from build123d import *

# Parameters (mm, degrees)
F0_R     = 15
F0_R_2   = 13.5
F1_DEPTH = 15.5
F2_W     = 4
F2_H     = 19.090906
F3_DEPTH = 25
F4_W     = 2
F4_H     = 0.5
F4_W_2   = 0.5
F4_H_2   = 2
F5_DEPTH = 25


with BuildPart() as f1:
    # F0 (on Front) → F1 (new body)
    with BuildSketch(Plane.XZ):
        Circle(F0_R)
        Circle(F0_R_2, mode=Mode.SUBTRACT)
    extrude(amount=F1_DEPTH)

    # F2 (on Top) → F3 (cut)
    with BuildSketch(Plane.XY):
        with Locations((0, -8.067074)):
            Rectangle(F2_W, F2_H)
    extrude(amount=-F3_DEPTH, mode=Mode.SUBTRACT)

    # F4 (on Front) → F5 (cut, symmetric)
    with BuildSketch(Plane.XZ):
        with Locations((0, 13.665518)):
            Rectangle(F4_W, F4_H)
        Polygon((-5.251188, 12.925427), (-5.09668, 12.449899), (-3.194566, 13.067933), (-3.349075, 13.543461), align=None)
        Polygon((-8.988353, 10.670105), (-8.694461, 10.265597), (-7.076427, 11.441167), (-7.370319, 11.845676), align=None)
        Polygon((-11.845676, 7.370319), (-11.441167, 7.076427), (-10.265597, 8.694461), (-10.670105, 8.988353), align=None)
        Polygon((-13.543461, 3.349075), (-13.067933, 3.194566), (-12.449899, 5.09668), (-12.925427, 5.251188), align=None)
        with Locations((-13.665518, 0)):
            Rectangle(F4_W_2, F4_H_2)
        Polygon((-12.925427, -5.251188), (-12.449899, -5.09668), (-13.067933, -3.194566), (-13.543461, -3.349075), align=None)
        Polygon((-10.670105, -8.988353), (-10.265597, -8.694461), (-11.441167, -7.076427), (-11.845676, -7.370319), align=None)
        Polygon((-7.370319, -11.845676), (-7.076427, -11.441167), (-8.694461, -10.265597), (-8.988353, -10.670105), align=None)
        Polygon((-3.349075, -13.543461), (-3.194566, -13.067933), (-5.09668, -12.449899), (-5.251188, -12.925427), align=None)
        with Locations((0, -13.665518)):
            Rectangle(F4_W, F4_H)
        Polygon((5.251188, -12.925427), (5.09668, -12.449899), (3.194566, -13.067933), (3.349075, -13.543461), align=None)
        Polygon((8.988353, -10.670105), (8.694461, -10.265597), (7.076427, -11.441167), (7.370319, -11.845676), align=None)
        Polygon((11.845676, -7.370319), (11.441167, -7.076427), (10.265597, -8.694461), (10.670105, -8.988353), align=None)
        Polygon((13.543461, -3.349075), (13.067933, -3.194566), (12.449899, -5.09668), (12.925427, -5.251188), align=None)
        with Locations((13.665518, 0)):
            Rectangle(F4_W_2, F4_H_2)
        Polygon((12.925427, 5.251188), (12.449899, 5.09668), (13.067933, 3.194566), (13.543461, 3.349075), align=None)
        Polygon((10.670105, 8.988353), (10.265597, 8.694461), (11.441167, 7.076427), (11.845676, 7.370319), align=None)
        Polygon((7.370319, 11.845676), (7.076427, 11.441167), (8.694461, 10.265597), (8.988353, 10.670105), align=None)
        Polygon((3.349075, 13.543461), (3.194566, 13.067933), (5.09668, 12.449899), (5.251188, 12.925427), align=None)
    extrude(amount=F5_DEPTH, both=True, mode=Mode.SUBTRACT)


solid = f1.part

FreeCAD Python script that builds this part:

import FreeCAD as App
import Part
import Sketcher
Q = App.Units.Quantity

doc = App.newDocument("Part")
body = doc.addObject("PartDesign::Body", "Body")

# Sketch on XZ plane
sketch1 = body.newObject("Sketcher::SketchObject", "Sketch")
sketch1.AttachmentSupport = (doc.getObject("XZ_Plane"), [""])
sketch1.MapMode = "FlatFace"
sketch1.addGeometry(Part.Circle(App.Vector(0, 0, 0), App.Vector(0, 0, 1), 15), False)
sketch1.addGeometry(Part.Circle(App.Vector(0, 0, 0), App.Vector(0, 0, 1), 13.5), False)
sketch1.addConstraint(Sketcher.Constraint("Coincident", 0, 3, -1, 1))
sketch1.addConstraint(Sketcher.Constraint("Coincident", 1, 3, -1, 1))
sketch1.addConstraint(Sketcher.Constraint("Diameter", 0, Q("30 mm")))
sketch1.addConstraint(Sketcher.Constraint("Diameter", 1, Q("27 mm")))
pad1 = body.newObject("PartDesign::Pad", "Pad")
pad1.Profile = sketch1
pad1.Length = 15.5

# Sketch on XY plane
sketch2 = body.newObject("Sketcher::SketchObject", "Sketch001")
sketch2.AttachmentSupport = (doc.getObject("XY_Plane"), [""])
sketch2.MapMode = "FlatFace"
sketch2.addGeometry(Part.LineSegment(App.Vector(-2, 1.478379, 0), App.Vector(-2, -17.612527, 0)), False)
sketch2.addGeometry(Part.LineSegment(App.Vector(-2, -17.612527, 0), App.Vector(2, -17.612527, 0)), False)
sketch2.addGeometry(Part.LineSegment(App.Vector(2, -17.612527, 0), App.Vector(2, 1.478379, 0)), False)
sketch2.addGeometry(Part.LineSegment(App.Vector(2, 1.478379, 0), App.Vector(-2, 1.478379, 0)), False)
sketch2.addConstraint(Sketcher.Constraint("Coincident", 0, 2, 1, 1))
sketch2.addConstraint(Sketcher.Constraint("Coincident", 1, 2, 2, 1))
sketch2.addConstraint(Sketcher.Constraint("Coincident", 2, 2, 3, 1))
sketch2.addConstraint(Sketcher.Constraint("Coincident", 3, 2, 0, 1))
sketch2.addConstraint(Sketcher.Constraint("Vertical", 0))
sketch2.addConstraint(Sketcher.Constraint("Horizontal", 1))
sketch2.addConstraint(Sketcher.Constraint("Vertical", 2))
sketch2.addConstraint(Sketcher.Constraint("Horizontal", 3))
sketch2.addConstraint(Sketcher.Constraint("DistanceX", 1, 1, 1, 2, Q("4 mm")))
sketch2.addConstraint(Sketcher.Constraint("DistanceX", 0, 2, -1, 1, Q("2 mm")))
sketch2.addConstraint(Sketcher.Constraint("DistanceY", 0, 2, 0, 1, Q("19.090906 mm")))
sketch2.addConstraint(Sketcher.Constraint("DistanceY", -1, 1, 2, 2, Q("1.478379 mm")))
pocket1 = body.newObject("PartDesign::Pocket", "Pocket")
pocket1.Profile = sketch2
pocket1.Length = 25

# Sketch on XZ plane
sketch3 = body.newObject("Sketcher::SketchObject", "Sketch002")
sketch3.AttachmentSupport = (doc.getObject("XZ_Plane"), [""])
sketch3.MapMode = "FlatFace"
sketch3.addGeometry(Part.LineSegment(App.Vector(-1, 13.915518, 0), App.Vector(-1, 13.415518, 0)), False)
sketch3.addGeometry(Part.LineSegment(App.Vector(-1, 13.415518, 0), App.Vector(1, 13.415518, 0)), False)
sketch3.addGeometry(Part.LineSegment(App.Vector(1, 13.415518, 0), App.Vector(1, 13.915518, 0)), False)
sketch3.addGeometry(Part.LineSegment(App.Vector(1, 13.915518, 0), App.Vector(-1, 13.915518, 0)), False)
sketch3.addGeometry(Part.LineSegment(App.Vector(-5.251188, 12.925427, 0), App.Vector(-5.09668, 12.449899, 0)), False)
sketch3.addGeometry(Part.LineSegment(App.Vector(-5.09668, 12.449899, 0), App.Vector(-3.194566, 13.067933, 0)), False)
sketch3.addGeometry(Part.LineSegment(App.Vector(-3.194566, 13.067933, 0), App.Vector(-3.349075, 13.543461, 0)), False)
sketch3.addGeometry(Part.LineSegment(App.Vector(-3.349075, 13.543461, 0), App.Vector(-5.251188, 12.925427, 0)), False)
sketch3.addGeometry(Part.LineSegment(App.Vector(-8.988353, 10.670105, 0), App.Vector(-8.694461, 10.265597, 0)), False)
sketch3.addGeometry(Part.LineSegment(App.Vector(-8.694461, 10.265597, 0), App.Vector(-7.076427, 11.441167, 0)), False)
sketch3.addGeometry(Part.LineSegment(App.Vector(-7.076427, 11.441167, 0), App.Vector(-7.370319, 11.845676, 0)), False)
sketch3.addGeometry(Part.LineSegment(App.Vector(-7.370319, 11.845676, 0), App.Vector(-8.988353, 10.670105, 0)), False)
sketch3.addGeometry(Part.LineSegment(App.Vector(-11.845676, 7.370319, 0), App.Vector(-11.441167, 7.076427, 0)), False)
sketch3.addGeometry(Part.LineSegment(App.Vector(-11.441167, 7.076427, 0), App.Vector(-10.265597, 8.694461, 0)), False)
sketch3.addGeometry(Part.LineSegment(App.Vector(-10.265597, 8.694461, 0), App.Vector(-10.670105, 8.988353, 0)), False)
sketch3.addGeometry(Part.LineSegment(App.Vector(-10.670105, 8.988353, 0), App.Vector(-11.845676, 7.370319, 0)), False)
sketch3.addGeometry(Part.LineSegment(App.Vector(-13.543461, 3.349075, 0), App.Vector(-13.067933, 3.194566, 0)), False)
sketch3.addGeometry(Part.LineSegment(App.Vector(-13.067933, 3.194566, 0), App.Vector(-12.449899, 5.09668, 0)), False)
sketch3.addGeometry(Part.LineSegment(App.Vector(-12.449899, 5.09668, 0), App.Vector(-12.925427, 5.251188, 0)), False)
sketch3.addGeometry(Part.LineSegment(App.Vector(-12.925427, 5.251188, 0), App.Vector(-13.543461, 3.349075, 0)), False)
sketch3.addGeometry(Part.LineSegment(App.Vector(-13.915518, 1, 0), App.Vector(-13.915518, -1, 0)), False)
sketch3.addGeometry(Part.LineSegment(App.Vector(-13.915518, -1, 0), App.Vector(-13.415518, -1, 0)), False)
sketch3.addGeometry(Part.LineSegment(App.Vector(-13.415518, -1, 0), App.Vector(-13.415518, 1, 0)), False)
sketch3.addGeometry(Part.LineSegment(App.Vector(-13.415518, 1, 0), App.Vector(-13.915518, 1, 0)), False)
sketch3.addGeometry(Part.LineSegment(App.Vector(-12.925427, -5.251188, 0), App.Vector(-12.449899, -5.09668, 0)), False)
sketch3.addGeometry(Part.LineSegment(App.Vector(-12.449899, -5.09668, 0), App.Vector(-13.067933, -3.194566, 0)), False)
sketch3.addGeometry(Part.LineSegment(App.Vector(-13.067933, -3.194566, 0), App.Vector(-13.543461, -3.349075, 0)), False)
sketch3.addGeometry(Part.LineSegment(App.Vector(-13.543461, -3.349075, 0), App.Vector(-12.925427, -5.251188, 0)), False)
sketch3.addGeometry(Part.LineSegment(App.Vector(-10.670105, -8.988353, 0), App.Vector(-10.265597, -8.694461, 0)), False)
sketch3.addGeometry(Part.LineSegment(App.Vector(-10.265597, -8.694461, 0), App.Vector(-11.441167, -7.076427, 0)), False)
sketch3.addGeometry(Part.LineSegment(App.Vector(-11.441167, -7.076427, 0), App.Vector(-11.845676, -7.370319, 0)), False)
sketch3.addGeometry(Part.LineSegment(App.Vector(-11.845676, -7.370319, 0), App.Vector(-10.670105, -8.988353, 0)), False)
sketch3.addGeometry(Part.LineSegment(App.Vector(-7.370319, -11.845676, 0), App.Vector(-7.076427, -11.441167, 0)), False)
sketch3.addGeometry(Part.LineSegment(App.Vector(-7.076427, -11.441167, 0), App.Vector(-8.694461, -10.265597, 0)), False)
sketch3.addGeometry(Part.LineSegment(App.Vector(-8.694461, -10.265597, 0), App.Vector(-8.988353, -10.670105, 0)), False)
sketch3.addGeometry(Part.LineSegment(App.Vector(-8.988353, -10.670105, 0), App.Vector(-7.370319, -11.845676, 0)), False)
sketch3.addGeometry(Part.LineSegment(App.Vector(-3.349075, -13.543461, 0), App.Vector(-3.194566, -13.067933, 0)), False)
sketch3.addGeometry(Part.LineSegment(App.Vector(-3.194566, -13.067933, 0), App.Vector(-5.09668, -12.449899, 0)), False)
sketch3.addGeometry(Part.LineSegment(App.Vector(-5.09668, -12.449899, 0), App.Vector(-5.251188, -12.925427, 0)), False)
sketch3.addGeometry(Part.LineSegment(App.Vector(-5.251188, -12.925427, 0), App.Vector(-3.349075, -13.543461, 0)), False)
sketch3.addGeometry(Part.LineSegment(App.Vector(-1, -13.415518, 0), App.Vector(-1, -13.915518, 0)), False)
sketch3.addGeometry(Part.LineSegment(App.Vector(-1, -13.915518, 0), App.Vector(1, -13.915518, 0)), False)
sketch3.addGeometry(Part.LineSegment(App.Vector(1, -13.915518, 0), App.Vector(1, -13.415518, 0)), False)
sketch3.addGeometry(Part.LineSegment(App.Vector(1, -13.415518, 0), App.Vector(-1, -13.415518, 0)), False)
sketch3.addGeometry(Part.LineSegment(App.Vector(5.251188, -12.925427, 0), App.Vector(5.09668, -12.449899, 0)), False)
sketch3.addGeometry(Part.LineSegment(App.Vector(5.09668, -12.449899, 0), App.Vector(3.194566, -13.067933, 0)), False)
sketch3.addGeometry(Part.LineSegment(App.Vector(3.194566, -13.067933, 0), App.Vector(3.349075, -13.543461, 0)), False)
sketch3.addGeometry(Part.LineSegment(App.Vector(3.349075, -13.543461, 0), App.Vector(5.251188, -12.925427, 0)), False)
sketch3.addGeometry(Part.LineSegment(App.Vector(8.988353, -10.670105, 0), App.Vector(8.694461, -10.265597, 0)), False)
sketch3.addGeometry(Part.LineSegment(App.Vector(8.694461, -10.265597, 0), App.Vector(7.076427, -11.441167, 0)), False)
sketch3.addGeometry(Part.LineSegment(App.Vector(7.076427, -11.441167, 0), App.Vector(7.370319, -11.845676, 0)), False)
sketch3.addGeometry(Part.LineSegment(App.Vector(7.370319, -11.845676, 0), App.Vector(8.988353, -10.670105, 0)), False)
sketch3.addGeometry(Part.LineSegment(App.Vector(11.845676, -7.370319, 0), App.Vector(11.441167, -7.076427, 0)), False)
sketch3.addGeometry(Part.LineSegment(App.Vector(11.441167, -7.076427, 0), App.Vector(10.265597, -8.694461, 0)), False)
sketch3.addGeometry(Part.LineSegment(App.Vector(10.265597, -8.694461, 0), App.Vector(10.670105, -8.988353, 0)), False)
sketch3.addGeometry(Part.LineSegment(App.Vector(10.670105, -8.988353, 0), App.Vector(11.845676, -7.370319, 0)), False)
sketch3.addGeometry(Part.LineSegment(App.Vector(13.543461, -3.349075, 0), App.Vector(13.067933, -3.194566, 0)), False)
sketch3.addGeometry(Part.LineSegment(App.Vector(13.067933, -3.194566, 0), App.Vector(12.449899, -5.09668, 0)), False)
sketch3.addGeometry(Part.LineSegment(App.Vector(12.449899, -5.09668, 0), App.Vector(12.925427, -5.251188, 0)), False)
sketch3.addGeometry(Part.LineSegment(App.Vector(12.925427, -5.251188, 0), App.Vector(13.543461, -3.349075, 0)), False)
sketch3.addGeometry(Part.LineSegment(App.Vector(13.415518, 1, 0), App.Vector(13.415518, -1, 0)), False)
sketch3.addGeometry(Part.LineSegment(App.Vector(13.415518, -1, 0), App.Vector(13.915518, -1, 0)), False)
sketch3.addGeometry(Part.LineSegment(App.Vector(13.915518, -1, 0), App.Vector(13.915518, 1, 0)), False)
sketch3.addGeometry(Part.LineSegment(App.Vector(13.915518, 1, 0), App.Vector(13.415518, 1, 0)), False)
sketch3.addGeometry(Part.LineSegment(App.Vector(12.925427, 5.251188, 0), App.Vector(12.449899, 5.09668, 0)), False)
sketch3.addGeometry(Part.LineSegment(App.Vector(12.449899, 5.09668, 0), App.Vector(13.067933, 3.194566, 0)), False)
sketch3.addGeometry(Part.LineSegment(App.Vector(13.067933, 3.194566, 0), App.Vector(13.543461, 3.349075, 0)), False)
sketch3.addGeometry(Part.LineSegment(App.Vector(13.543461, 3.349075, 0), App.Vector(12.925427, 5.251188, 0)), False)
sketch3.addGeometry(Part.LineSegment(App.Vector(10.670105, 8.988353, 0), App.Vector(10.265597, 8.694461, 0)), False)
sketch3.addGeometry(Part.LineSegment(App.Vector(10.265597, 8.694461, 0), App.Vector(11.441167, 7.076427, 0)), False)
sketch3.addGeometry(Part.LineSegment(App.Vector(11.441167, 7.076427, 0), App.Vector(11.845676, 7.370319, 0)), False)
sketch3.addGeometry(Part.LineSegment(App.Vector(11.845676, 7.370319, 0), App.Vector(10.670105, 8.988353, 0)), False)
sketch3.addGeometry(Part.LineSegment(App.Vector(7.370319, 11.845676, 0), App.Vector(7.076427, 11.441167, 0)), False)
sketch3.addGeometry(Part.LineSegment(App.Vector(7.076427, 11.441167, 0), App.Vector(8.694461, 10.265597, 0)), False)
sketch3.addGeometry(Part.LineSegment(App.Vector(8.694461, 10.265597, 0), App.Vector(8.988353, 10.670105, 0)), False)
sketch3.addGeometry(Part.LineSegment(App.Vector(8.988353, 10.670105, 0), App.Vector(7.370319, 11.845676, 0)), False)
sketch3.addGeometry(Part.LineSegment(App.Vector(3.349075, 13.543461, 0), App.Vector(3.194566, 13.067933, 0)), False)
sketch3.addGeometry(Part.LineSegment(App.Vector(3.194566, 13.067933, 0), App.Vector(5.09668, 12.449899, 0)), False)
sketch3.addGeometry(Part.LineSegment(App.Vector(5.09668, 12.449899, 0), App.Vector(5.251188, 12.925427, 0)), False)
sketch3.addGeometry(Part.LineSegment(App.Vector(5.251188, 12.925427, 0), App.Vector(3.349075, 13.543461, 0)), False)
sketch3.addConstraint(Sketcher.Constraint("Coincident", 0, 2, 1, 1))
sketch3.addConstraint(Sketcher.Constraint("Coincident", 1, 2, 2, 1))
sketch3.addConstraint(Sketcher.Constraint("Coincident", 2, 2, 3, 1))
sketch3.addConstraint(Sketcher.Constraint("Coincident", 3, 2, 0, 1))
sketch3.addConstraint(Sketcher.Constraint("Coincident", 4, 2, 5, 1))
sketch3.addConstraint(Sketcher.Constraint("Coincident", 5, 2, 6, 1))
sketch3.addConstraint(Sketcher.Constraint("Coincident", 6, 2, 7, 1))
sketch3.addConstraint(Sketcher.Constraint("Coincident", 7, 2, 4, 1))
sketch3.addConstraint(Sketcher.Constraint("Coincident", 8, 2, 9, 1))
sketch3.addConstraint(Sketcher.Constraint("Coincident", 9, 2, 10, 1))
sketch3.addConstraint(Sketcher.Constraint("Coincident", 10, 2, 11, 1))
sketch3.addConstraint(Sketcher.Constraint("Coincident", 11, 2, 8, 1))
sketch3.addConstraint(Sketcher.Constraint("Coincident", 12, 2, 13, 1))
sketch3.addConstraint(Sketcher.Constraint("Coincident", 13, 2, 14, 1))
sketch3.addConstraint(Sketcher.Constraint("Coincident", 14, 2, 15, 1))
sketch3.addConstraint(Sketcher.Constraint("Coincident", 15, 2, 12, 1))
sketch3.addConstraint(Sketcher.Constraint("Coincident", 16, 2, 17, 1))
sketch3.addConstraint(Sketcher.Constraint("Coincident", 17, 2, 18, 1))
sketch3.addConstraint(Sketcher.Constraint("Coincident", 18, 2, 19, 1))
sketch3.addConstraint(Sketcher.Constraint("Coincident", 19, 2, 16, 1))
sketch3.addConstraint(Sketcher.Constraint("Coincident", 20, 2, 21, 1))
sketch3.addConstraint(Sketcher.Constraint("Coincident", 21, 2, 22, 1))
sketch3.addConstraint(Sketcher.Constraint("Coincident", 22, 2, 23, 1))
sketch3.addConstraint(Sketcher.Constraint("Coincident", 23, 2, 20, 1))
sketch3.addConstraint(Sketcher.Constraint("Coincident", 24, 2, 25, 1))
sketch3.addConstraint(Sketcher.Constraint("Coincident", 25, 2, 26, 1))
sketch3.addConstraint(Sketcher.Constraint("Coincident", 26, 2, 27, 1))
sketch3.addConstraint(Sketcher.Constraint("Coincident", 27, 2, 24, 1))
sketch3.addConstraint(Sketcher.Constraint("Coincident", 28, 2, 29, 1))
sketch3.addConstraint(Sketcher.Constraint("Coincident", 29, 2, 30, 1))
sketch3.addConstraint(Sketcher.Constraint("Coincident", 30, 2, 31, 1))
sketch3.addConstraint(Sketcher.Constraint("Coincident", 31, 2, 28, 1))
sketch3.addConstraint(Sketcher.Constraint("Coincident", 32, 2, 33, 1))
sketch3.addConstraint(Sketcher.Constraint("Coincident", 33, 2, 34, 1))
sketch3.addConstraint(Sketcher.Constraint("Coincident", 34, 2, 35, 1))
sketch3.addConstraint(Sketcher.Constraint("Coincident", 35, 2, 32, 1))
sketch3.addConstraint(Sketcher.Constraint("Coincident", 36, 2, 37, 1))
sketch3.addConstraint(Sketcher.Constraint("Coincident", 37, 2, 38, 1))
sketch3.addConstraint(Sketcher.Constraint("Coincident", 38, 2, 39, 1))
sketch3.addConstraint(Sketcher.Constraint("Coincident", 39, 2, 36, 1))
sketch3.addConstraint(Sketcher.Constraint("Coincident", 40, 2, 41, 1))
sketch3.addConstraint(Sketcher.Constraint("Coincident", 41, 2, 42, 1))
sketch3.addConstraint(Sketcher.Constraint("Coincident", 42, 2, 43, 1))
sketch3.addConstraint(Sketcher.Constraint("Coincident", 43, 2, 40, 1))
sketch3.addConstraint(Sketcher.Constraint("Coincident", 44, 2, 45, 1))
sketch3.addConstraint(Sketcher.Constraint("Coincident", 45, 2, 46, 1))
sketch3.addConstraint(Sketcher.Constraint("Coincident", 46, 2, 47, 1))
sketch3.addConstraint(Sketcher.Constraint("Coincident", 47, 2, 44, 1))
sketch3.addConstraint(Sketcher.Constraint("Coincident", 48, 2, 49, 1))
sketch3.addConstraint(Sketcher.Constraint("Coincident", 49, 2, 50, 1))
sketch3.addConstraint(Sketcher.Constraint("Coincident", 50, 2, 51, 1))
sketch3.addConstraint(Sketcher.Constraint("Coincident", 51, 2, 48, 1))
sketch3.addConstraint(Sketcher.Constraint("Coincident", 52, 2, 53, 1))
sketch3.addConstraint(Sketcher.Constraint("Coincident", 53, 2, 54, 1))
sketch3.addConstraint(Sketcher.Constraint("Coincident", 54, 2, 55, 1))
sketch3.addConstraint(Sketcher.Constraint("Coincident", 55, 2, 52, 1))
sketch3.addConstraint(Sketcher.Constraint("Coincident", 56, 2, 57, 1))
sketch3.addConstraint(Sketcher.Constraint("Coincident", 57, 2, 58, 1))
sketch3.addConstraint(Sketcher.Constraint("Coincident", 58, 2, 59, 1))
sketch3.addConstraint(Sketcher.Constraint("Coincident", 59, 2, 56, 1))
sketch3.addConstraint(Sketcher.Constraint("Coincident", 60, 2, 61, 1))
sketch3.addConstraint(Sketcher.Constraint("Coincident", 61, 2, 62, 1))
sketch3.addConstraint(Sketcher.Constraint("Coincident", 62, 2, 63, 1))
sketch3.addConstraint(Sketcher.Constraint("Coincident", 63, 2, 60, 1))
sketch3.addConstraint(Sketcher.Constraint("Coincident", 64, 2, 65, 1))
sketch3.addConstraint(Sketcher.Constraint("Coincident", 65, 2, 66, 1))
sketch3.addConstraint(Sketcher.Constraint("Coincident", 66, 2, 67, 1))
sketch3.addConstraint(Sketcher.Constraint("Coincident", 67, 2, 64, 1))
sketch3.addConstraint(Sketcher.Constraint("Coincident", 68, 2, 69, 1))
sketch3.addConstraint(Sketcher.Constraint("Coincident", 69, 2, 70, 1))
sketch3.addConstraint(Sketcher.Constraint("Coincident", 70, 2, 71, 1))
sketch3.addConstraint(Sketcher.Constraint("Coincident", 71, 2, 68, 1))
sketch3.addConstraint(Sketcher.Constraint("Coincident", 72, 2, 73, 1))
sketch3.addConstraint(Sketcher.Constraint("Coincident", 73, 2, 74, 1))
sketch3.addConstraint(Sketcher.Constraint("Coincident", 74, 2, 75, 1))
sketch3.addConstraint(Sketcher.Constraint("Coincident", 75, 2, 72, 1))
sketch3.addConstraint(Sketcher.Constraint("Coincident", 76, 2, 77, 1))
sketch3.addConstraint(Sketcher.Constraint("Coincident", 77, 2, 78, 1))
sketch3.addConstraint(Sketcher.Constraint("Coincident", 78, 2, 79, 1))
sketch3.addConstraint(Sketcher.Constraint("Coincident", 79, 2, 76, 1))
sketch3.addConstraint(Sketcher.Constraint("Vertical", 0))
sketch3.addConstraint(Sketcher.Constraint("Horizontal", 1))
sketch3.addConstraint(Sketcher.Constraint("Vertical", 2))
sketch3.addConstraint(Sketcher.Constraint("Horizontal", 3))
sketch3.addConstraint(Sketcher.Constraint("Vertical", 20))
sketch3.addConstraint(Sketcher.Constraint("Horizontal", 21))
sketch3.addConstraint(Sketcher.Constraint("Vertical", 22))
sketch3.addConstraint(Sketcher.Constraint("Horizontal", 23))
sketch3.addConstraint(Sketcher.Constraint("Vertical", 40))
sketch3.addConstraint(Sketcher.Constraint("Horizontal", 41))
sketch3.addConstraint(Sketcher.Constraint("Vertical", 42))
sketch3.addConstraint(Sketcher.Constraint("Horizontal", 43))
sketch3.addConstraint(Sketcher.Constraint("Vertical", 60))
sketch3.addConstraint(Sketcher.Constraint("Horizontal", 61))
sketch3.addConstraint(Sketcher.Constraint("Vertical", 62))
sketch3.addConstraint(Sketcher.Constraint("Horizontal", 63))
sketch3.addConstraint(Sketcher.Constraint("Symmetric", 2, 2, 40, 2, -1, 1))
sketch3.addConstraint(Sketcher.Constraint("Symmetric", 0, 2, 42, 2, -1, 1))
sketch3.addConstraint(Sketcher.Constraint("Symmetric", 4, 2, 44, 2, -1, 1))
sketch3.addConstraint(Sketcher.Constraint("Symmetric", 5, 2, 45, 2, -1, 1))
sketch3.addConstraint(Sketcher.Constraint("Symmetric", 6, 2, 46, 2, -1, 1))
sketch3.addConstraint(Sketcher.Constraint("Symmetric", 7, 2, 47, 2, -1, 1))
sketch3.addConstraint(Sketcher.Constraint("Symmetric", 8, 2, 48, 2, -1, 1))
sketch3.addConstraint(Sketcher.Constraint("Symmetric", 9, 2, 49, 2, -1, 1))
sketch3.addConstraint(Sketcher.Constraint("Symmetric", 10, 2, 50, 2, -1, 1))
sketch3.addConstraint(Sketcher.Constraint("Symmetric", 11, 2, 51, 2, -1, 1))
sketch3.addConstraint(Sketcher.Constraint("Symmetric", 12, 2, 52, 2, -1, 1))
sketch3.addConstraint(Sketcher.Constraint("Symmetric", 13, 2, 53, 2, -1, 1))
sketch3.addConstraint(Sketcher.Constraint("Symmetric", 14, 2, 54, 2, -1, 1))
sketch3.addConstraint(Sketcher.Constraint("Symmetric", 15, 2, 55, 2, -1, 1))
sketch3.addConstraint(Sketcher.Constraint("Symmetric", 16, 2, 56, 2, -1, 1))
sketch3.addConstraint(Sketcher.Constraint("Symmetric", 17, 2, 57, 2, -1, 1))
sketch3.addConstraint(Sketcher.Constraint("Symmetric", 18, 2, 58, 2, -1, 1))
sketch3.addConstraint(Sketcher.Constraint("Symmetric", 19, 2, 59, 2, -1, 1))
sketch3.addConstraint(Sketcher.Constraint("Symmetric", 22, 2, 60, 2, -1, 1))
sketch3.addConstraint(Sketcher.Constraint("Symmetric", 20, 2, 62, 2, -1, 1))
sketch3.addConstraint(Sketcher.Constraint("Symmetric", 24, 2, 64, 2, -1, 1))
sketch3.addConstraint(Sketcher.Constraint("Symmetric", 25, 2, 65, 2, -1, 1))
sketch3.addConstraint(Sketcher.Constraint("Symmetric", 26, 2, 66, 2, -1, 1))
sketch3.addConstraint(Sketcher.Constraint("Symmetric", 27, 2, 67, 2, -1, 1))
sketch3.addConstraint(Sketcher.Constraint("Symmetric", 28, 2, 68, 2, -1, 1))
sketch3.addConstraint(Sketcher.Constraint("Symmetric", 29, 2, 69, 2, -1, 1))
sketch3.addConstraint(Sketcher.Constraint("Symmetric", 30, 2, 70, 2, -1, 1))
sketch3.addConstraint(Sketcher.Constraint("Symmetric", 31, 2, 71, 2, -1, 1))
sketch3.addConstraint(Sketcher.Constraint("Symmetric", 32, 2, 72, 2, -1, 1))
sketch3.addConstraint(Sketcher.Constraint("Symmetric", 33, 2, 73, 2, -1, 1))
sketch3.addConstraint(Sketcher.Constraint("Symmetric", 34, 2, 74, 2, -1, 1))
sketch3.addConstraint(Sketcher.Constraint("Symmetric", 35, 2, 75, 2, -1, 1))
sketch3.addConstraint(Sketcher.Constraint("Symmetric", 36, 2, 76, 2, -1, 1))
sketch3.addConstraint(Sketcher.Constraint("Symmetric", 37, 2, 77, 2, -1, 1))
sketch3.addConstraint(Sketcher.Constraint("Symmetric", 38, 2, 78, 2, -1, 1))
sketch3.addConstraint(Sketcher.Constraint("Symmetric", 39, 2, 79, 2, -1, 1))
sketch3.addConstraint(Sketcher.Constraint("Symmetric", 37, 2, 44, 2, -2))
sketch3.addConstraint(Sketcher.Constraint("Symmetric", 36, 2, 45, 2, -2))
sketch3.addConstraint(Sketcher.Constraint("Symmetric", 39, 2, 46, 2, -2))
sketch3.addConstraint(Sketcher.Constraint("Symmetric", 38, 2, 47, 2, -2))
sketch3.addConstraint(Sketcher.Constraint("Symmetric", 33, 2, 48, 2, -2))
sketch3.addConstraint(Sketcher.Constraint("Symmetric", 32, 2, 49, 2, -2))
sketch3.addConstraint(Sketcher.Constraint("Symmetric", 35, 2, 50, 2, -2))
sketch3.addConstraint(Sketcher.Constraint("Symmetric", 34, 2, 51, 2, -2))
sketch3.addConstraint(Sketcher.Constraint("Symmetric", 29, 2, 52, 2, -2))
sketch3.addConstraint(Sketcher.Constraint("Symmetric", 28, 2, 53, 2, -2))
sketch3.addConstraint(Sketcher.Constraint("Symmetric", 31, 2, 54, 2, -2))
sketch3.addConstraint(Sketcher.Constraint("Symmetric", 30, 2, 55, 2, -2))
sketch3.addConstraint(Sketcher.Constraint("Symmetric", 25, 2, 56, 2, -2))
sketch3.addConstraint(Sketcher.Constraint("Symmetric", 24, 2, 57, 2, -2))
sketch3.addConstraint(Sketcher.Constraint("Symmetric", 27, 2, 58, 2, -2))
sketch3.addConstraint(Sketcher.Constraint("Symmetric", 26, 2, 59, 2, -2))
sketch3.addConstraint(Sketcher.Constraint("Perpendicular", 4, 5))
sketch3.addConstraint(Sketcher.Constraint("Perpendicular", 5, 6))
sketch3.addConstraint(Sketcher.Constraint("Perpendicular", 6, 7))
sketch3.addConstraint(Sketcher.Constraint("Perpendicular", 8, 9))
sketch3.addConstraint(Sketcher.Constraint("Perpendicular", 9, 10))
sketch3.addConstraint(Sketcher.Constraint("Perpendicular", 10, 11))
sketch3.addConstraint(Sketcher.Constraint("Perpendicular", 12, 13))
sketch3.addConstraint(Sketcher.Constraint("Perpendicular", 13, 14))
sketch3.addConstraint(Sketcher.Constraint("Perpendicular", 14, 15))
sketch3.addConstraint(Sketcher.Constraint("Perpendicular", 16, 17))
sketch3.addConstraint(Sketcher.Constraint("Perpendicular", 17, 18))
sketch3.addConstraint(Sketcher.Constraint("Perpendicular", 18, 19))
sketch3.addConstraint(Sketcher.Constraint("Parallel", 7, 24))
sketch3.addConstraint(Sketcher.Constraint("Parallel", 11, 28))
sketch3.addConstraint(Sketcher.Constraint("Horizontal", 21, 2, 60, 2))
sketch3.addConstraint(Sketcher.Constraint("Vertical", 3, 2, 40, 2))
sketch3.addConstraint(Sketcher.Constraint("Equal", 63, 0))
sketch3.addConstraint(Sketcher.Constraint("Equal", 43, 20))
sketch3.addConstraint(Sketcher.Constraint("Equal", 6, 8))
sketch3.addConstraint(Sketcher.Constraint("Equal", 7, 9))
sketch3.addConstraint(Sketcher.Constraint("Equal", 10, 12))
sketch3.addConstraint(Sketcher.Constraint("Equal", 11, 13))
sketch3.addConstraint(Sketcher.Constraint("Equal", 14, 16))
sketch3.addConstraint(Sketcher.Constraint("Equal", 15, 17))
sketch3.addConstraint(Sketcher.Constraint("DistanceX", 1, 1, 1, 2, Q("2 mm")))
sketch3.addConstraint(Sketcher.Constraint("Angle", 5, Q("17.999992 deg")))
sketch3.addConstraint(Sketcher.Constraint("Angle", 9, Q("35.999988 deg")))
sketch3.addConstraint(Sketcher.Constraint("Distance", 5, Q("2.000001 mm")))
sketch3.addConstraint(Sketcher.Constraint("DistanceX", 21, 1, 21, 2, Q("0.5 mm")))
sketch3.addConstraint(Sketcher.Constraint("Distance", 4, Q("0.5 mm")))
sketch3.addConstraint(Sketcher.Constraint("DistanceY", -1, 1, 4, 2, Q("12.449899 mm")))
sketch3.addConstraint(Sketcher.Constraint("DistanceX", 17, 2, -1, 1, Q("12.449899 mm")))
sketch3.addConstraint(Sketcher.Constraint("DistanceX", 4, 2, -1, 1, Q("5.09668 mm")))
sketch3.addConstraint(Sketcher.Constraint("DistanceX", 8, 2, -1, 1, Q("8.694461 mm")))
sketch3.addConstraint(Sketcher.Constraint("DistanceY", -1, 1, 13, 2, Q("8.694461 mm")))
sketch3.addConstraint(Sketcher.Constraint("DistanceY", -1, 1, 17, 2, Q("5.09668 mm")))
sketch3.addConstraint(Sketcher.Constraint("DistanceY", -1, 1, 0, 2, Q("13.415518 mm")))
sketch3.addConstraint(Sketcher.Constraint("DistanceY", -1, 1, 8, 2, Q("10.265597 mm")))
sketch3.addConstraint(Sketcher.Constraint("DistanceX", 12, 2, -1, 1, Q("11.441167 mm")))
sketch3.addConstraint(Sketcher.Constraint("DistanceX", 20, 2, -1, 1, Q("13.915518 mm")))
pocket2 = body.newObject("PartDesign::Pocket", "Pocket001")
pocket2.Profile = sketch3
pocket2.Length = 50
pocket2.Midplane = True

doc.recompute()
